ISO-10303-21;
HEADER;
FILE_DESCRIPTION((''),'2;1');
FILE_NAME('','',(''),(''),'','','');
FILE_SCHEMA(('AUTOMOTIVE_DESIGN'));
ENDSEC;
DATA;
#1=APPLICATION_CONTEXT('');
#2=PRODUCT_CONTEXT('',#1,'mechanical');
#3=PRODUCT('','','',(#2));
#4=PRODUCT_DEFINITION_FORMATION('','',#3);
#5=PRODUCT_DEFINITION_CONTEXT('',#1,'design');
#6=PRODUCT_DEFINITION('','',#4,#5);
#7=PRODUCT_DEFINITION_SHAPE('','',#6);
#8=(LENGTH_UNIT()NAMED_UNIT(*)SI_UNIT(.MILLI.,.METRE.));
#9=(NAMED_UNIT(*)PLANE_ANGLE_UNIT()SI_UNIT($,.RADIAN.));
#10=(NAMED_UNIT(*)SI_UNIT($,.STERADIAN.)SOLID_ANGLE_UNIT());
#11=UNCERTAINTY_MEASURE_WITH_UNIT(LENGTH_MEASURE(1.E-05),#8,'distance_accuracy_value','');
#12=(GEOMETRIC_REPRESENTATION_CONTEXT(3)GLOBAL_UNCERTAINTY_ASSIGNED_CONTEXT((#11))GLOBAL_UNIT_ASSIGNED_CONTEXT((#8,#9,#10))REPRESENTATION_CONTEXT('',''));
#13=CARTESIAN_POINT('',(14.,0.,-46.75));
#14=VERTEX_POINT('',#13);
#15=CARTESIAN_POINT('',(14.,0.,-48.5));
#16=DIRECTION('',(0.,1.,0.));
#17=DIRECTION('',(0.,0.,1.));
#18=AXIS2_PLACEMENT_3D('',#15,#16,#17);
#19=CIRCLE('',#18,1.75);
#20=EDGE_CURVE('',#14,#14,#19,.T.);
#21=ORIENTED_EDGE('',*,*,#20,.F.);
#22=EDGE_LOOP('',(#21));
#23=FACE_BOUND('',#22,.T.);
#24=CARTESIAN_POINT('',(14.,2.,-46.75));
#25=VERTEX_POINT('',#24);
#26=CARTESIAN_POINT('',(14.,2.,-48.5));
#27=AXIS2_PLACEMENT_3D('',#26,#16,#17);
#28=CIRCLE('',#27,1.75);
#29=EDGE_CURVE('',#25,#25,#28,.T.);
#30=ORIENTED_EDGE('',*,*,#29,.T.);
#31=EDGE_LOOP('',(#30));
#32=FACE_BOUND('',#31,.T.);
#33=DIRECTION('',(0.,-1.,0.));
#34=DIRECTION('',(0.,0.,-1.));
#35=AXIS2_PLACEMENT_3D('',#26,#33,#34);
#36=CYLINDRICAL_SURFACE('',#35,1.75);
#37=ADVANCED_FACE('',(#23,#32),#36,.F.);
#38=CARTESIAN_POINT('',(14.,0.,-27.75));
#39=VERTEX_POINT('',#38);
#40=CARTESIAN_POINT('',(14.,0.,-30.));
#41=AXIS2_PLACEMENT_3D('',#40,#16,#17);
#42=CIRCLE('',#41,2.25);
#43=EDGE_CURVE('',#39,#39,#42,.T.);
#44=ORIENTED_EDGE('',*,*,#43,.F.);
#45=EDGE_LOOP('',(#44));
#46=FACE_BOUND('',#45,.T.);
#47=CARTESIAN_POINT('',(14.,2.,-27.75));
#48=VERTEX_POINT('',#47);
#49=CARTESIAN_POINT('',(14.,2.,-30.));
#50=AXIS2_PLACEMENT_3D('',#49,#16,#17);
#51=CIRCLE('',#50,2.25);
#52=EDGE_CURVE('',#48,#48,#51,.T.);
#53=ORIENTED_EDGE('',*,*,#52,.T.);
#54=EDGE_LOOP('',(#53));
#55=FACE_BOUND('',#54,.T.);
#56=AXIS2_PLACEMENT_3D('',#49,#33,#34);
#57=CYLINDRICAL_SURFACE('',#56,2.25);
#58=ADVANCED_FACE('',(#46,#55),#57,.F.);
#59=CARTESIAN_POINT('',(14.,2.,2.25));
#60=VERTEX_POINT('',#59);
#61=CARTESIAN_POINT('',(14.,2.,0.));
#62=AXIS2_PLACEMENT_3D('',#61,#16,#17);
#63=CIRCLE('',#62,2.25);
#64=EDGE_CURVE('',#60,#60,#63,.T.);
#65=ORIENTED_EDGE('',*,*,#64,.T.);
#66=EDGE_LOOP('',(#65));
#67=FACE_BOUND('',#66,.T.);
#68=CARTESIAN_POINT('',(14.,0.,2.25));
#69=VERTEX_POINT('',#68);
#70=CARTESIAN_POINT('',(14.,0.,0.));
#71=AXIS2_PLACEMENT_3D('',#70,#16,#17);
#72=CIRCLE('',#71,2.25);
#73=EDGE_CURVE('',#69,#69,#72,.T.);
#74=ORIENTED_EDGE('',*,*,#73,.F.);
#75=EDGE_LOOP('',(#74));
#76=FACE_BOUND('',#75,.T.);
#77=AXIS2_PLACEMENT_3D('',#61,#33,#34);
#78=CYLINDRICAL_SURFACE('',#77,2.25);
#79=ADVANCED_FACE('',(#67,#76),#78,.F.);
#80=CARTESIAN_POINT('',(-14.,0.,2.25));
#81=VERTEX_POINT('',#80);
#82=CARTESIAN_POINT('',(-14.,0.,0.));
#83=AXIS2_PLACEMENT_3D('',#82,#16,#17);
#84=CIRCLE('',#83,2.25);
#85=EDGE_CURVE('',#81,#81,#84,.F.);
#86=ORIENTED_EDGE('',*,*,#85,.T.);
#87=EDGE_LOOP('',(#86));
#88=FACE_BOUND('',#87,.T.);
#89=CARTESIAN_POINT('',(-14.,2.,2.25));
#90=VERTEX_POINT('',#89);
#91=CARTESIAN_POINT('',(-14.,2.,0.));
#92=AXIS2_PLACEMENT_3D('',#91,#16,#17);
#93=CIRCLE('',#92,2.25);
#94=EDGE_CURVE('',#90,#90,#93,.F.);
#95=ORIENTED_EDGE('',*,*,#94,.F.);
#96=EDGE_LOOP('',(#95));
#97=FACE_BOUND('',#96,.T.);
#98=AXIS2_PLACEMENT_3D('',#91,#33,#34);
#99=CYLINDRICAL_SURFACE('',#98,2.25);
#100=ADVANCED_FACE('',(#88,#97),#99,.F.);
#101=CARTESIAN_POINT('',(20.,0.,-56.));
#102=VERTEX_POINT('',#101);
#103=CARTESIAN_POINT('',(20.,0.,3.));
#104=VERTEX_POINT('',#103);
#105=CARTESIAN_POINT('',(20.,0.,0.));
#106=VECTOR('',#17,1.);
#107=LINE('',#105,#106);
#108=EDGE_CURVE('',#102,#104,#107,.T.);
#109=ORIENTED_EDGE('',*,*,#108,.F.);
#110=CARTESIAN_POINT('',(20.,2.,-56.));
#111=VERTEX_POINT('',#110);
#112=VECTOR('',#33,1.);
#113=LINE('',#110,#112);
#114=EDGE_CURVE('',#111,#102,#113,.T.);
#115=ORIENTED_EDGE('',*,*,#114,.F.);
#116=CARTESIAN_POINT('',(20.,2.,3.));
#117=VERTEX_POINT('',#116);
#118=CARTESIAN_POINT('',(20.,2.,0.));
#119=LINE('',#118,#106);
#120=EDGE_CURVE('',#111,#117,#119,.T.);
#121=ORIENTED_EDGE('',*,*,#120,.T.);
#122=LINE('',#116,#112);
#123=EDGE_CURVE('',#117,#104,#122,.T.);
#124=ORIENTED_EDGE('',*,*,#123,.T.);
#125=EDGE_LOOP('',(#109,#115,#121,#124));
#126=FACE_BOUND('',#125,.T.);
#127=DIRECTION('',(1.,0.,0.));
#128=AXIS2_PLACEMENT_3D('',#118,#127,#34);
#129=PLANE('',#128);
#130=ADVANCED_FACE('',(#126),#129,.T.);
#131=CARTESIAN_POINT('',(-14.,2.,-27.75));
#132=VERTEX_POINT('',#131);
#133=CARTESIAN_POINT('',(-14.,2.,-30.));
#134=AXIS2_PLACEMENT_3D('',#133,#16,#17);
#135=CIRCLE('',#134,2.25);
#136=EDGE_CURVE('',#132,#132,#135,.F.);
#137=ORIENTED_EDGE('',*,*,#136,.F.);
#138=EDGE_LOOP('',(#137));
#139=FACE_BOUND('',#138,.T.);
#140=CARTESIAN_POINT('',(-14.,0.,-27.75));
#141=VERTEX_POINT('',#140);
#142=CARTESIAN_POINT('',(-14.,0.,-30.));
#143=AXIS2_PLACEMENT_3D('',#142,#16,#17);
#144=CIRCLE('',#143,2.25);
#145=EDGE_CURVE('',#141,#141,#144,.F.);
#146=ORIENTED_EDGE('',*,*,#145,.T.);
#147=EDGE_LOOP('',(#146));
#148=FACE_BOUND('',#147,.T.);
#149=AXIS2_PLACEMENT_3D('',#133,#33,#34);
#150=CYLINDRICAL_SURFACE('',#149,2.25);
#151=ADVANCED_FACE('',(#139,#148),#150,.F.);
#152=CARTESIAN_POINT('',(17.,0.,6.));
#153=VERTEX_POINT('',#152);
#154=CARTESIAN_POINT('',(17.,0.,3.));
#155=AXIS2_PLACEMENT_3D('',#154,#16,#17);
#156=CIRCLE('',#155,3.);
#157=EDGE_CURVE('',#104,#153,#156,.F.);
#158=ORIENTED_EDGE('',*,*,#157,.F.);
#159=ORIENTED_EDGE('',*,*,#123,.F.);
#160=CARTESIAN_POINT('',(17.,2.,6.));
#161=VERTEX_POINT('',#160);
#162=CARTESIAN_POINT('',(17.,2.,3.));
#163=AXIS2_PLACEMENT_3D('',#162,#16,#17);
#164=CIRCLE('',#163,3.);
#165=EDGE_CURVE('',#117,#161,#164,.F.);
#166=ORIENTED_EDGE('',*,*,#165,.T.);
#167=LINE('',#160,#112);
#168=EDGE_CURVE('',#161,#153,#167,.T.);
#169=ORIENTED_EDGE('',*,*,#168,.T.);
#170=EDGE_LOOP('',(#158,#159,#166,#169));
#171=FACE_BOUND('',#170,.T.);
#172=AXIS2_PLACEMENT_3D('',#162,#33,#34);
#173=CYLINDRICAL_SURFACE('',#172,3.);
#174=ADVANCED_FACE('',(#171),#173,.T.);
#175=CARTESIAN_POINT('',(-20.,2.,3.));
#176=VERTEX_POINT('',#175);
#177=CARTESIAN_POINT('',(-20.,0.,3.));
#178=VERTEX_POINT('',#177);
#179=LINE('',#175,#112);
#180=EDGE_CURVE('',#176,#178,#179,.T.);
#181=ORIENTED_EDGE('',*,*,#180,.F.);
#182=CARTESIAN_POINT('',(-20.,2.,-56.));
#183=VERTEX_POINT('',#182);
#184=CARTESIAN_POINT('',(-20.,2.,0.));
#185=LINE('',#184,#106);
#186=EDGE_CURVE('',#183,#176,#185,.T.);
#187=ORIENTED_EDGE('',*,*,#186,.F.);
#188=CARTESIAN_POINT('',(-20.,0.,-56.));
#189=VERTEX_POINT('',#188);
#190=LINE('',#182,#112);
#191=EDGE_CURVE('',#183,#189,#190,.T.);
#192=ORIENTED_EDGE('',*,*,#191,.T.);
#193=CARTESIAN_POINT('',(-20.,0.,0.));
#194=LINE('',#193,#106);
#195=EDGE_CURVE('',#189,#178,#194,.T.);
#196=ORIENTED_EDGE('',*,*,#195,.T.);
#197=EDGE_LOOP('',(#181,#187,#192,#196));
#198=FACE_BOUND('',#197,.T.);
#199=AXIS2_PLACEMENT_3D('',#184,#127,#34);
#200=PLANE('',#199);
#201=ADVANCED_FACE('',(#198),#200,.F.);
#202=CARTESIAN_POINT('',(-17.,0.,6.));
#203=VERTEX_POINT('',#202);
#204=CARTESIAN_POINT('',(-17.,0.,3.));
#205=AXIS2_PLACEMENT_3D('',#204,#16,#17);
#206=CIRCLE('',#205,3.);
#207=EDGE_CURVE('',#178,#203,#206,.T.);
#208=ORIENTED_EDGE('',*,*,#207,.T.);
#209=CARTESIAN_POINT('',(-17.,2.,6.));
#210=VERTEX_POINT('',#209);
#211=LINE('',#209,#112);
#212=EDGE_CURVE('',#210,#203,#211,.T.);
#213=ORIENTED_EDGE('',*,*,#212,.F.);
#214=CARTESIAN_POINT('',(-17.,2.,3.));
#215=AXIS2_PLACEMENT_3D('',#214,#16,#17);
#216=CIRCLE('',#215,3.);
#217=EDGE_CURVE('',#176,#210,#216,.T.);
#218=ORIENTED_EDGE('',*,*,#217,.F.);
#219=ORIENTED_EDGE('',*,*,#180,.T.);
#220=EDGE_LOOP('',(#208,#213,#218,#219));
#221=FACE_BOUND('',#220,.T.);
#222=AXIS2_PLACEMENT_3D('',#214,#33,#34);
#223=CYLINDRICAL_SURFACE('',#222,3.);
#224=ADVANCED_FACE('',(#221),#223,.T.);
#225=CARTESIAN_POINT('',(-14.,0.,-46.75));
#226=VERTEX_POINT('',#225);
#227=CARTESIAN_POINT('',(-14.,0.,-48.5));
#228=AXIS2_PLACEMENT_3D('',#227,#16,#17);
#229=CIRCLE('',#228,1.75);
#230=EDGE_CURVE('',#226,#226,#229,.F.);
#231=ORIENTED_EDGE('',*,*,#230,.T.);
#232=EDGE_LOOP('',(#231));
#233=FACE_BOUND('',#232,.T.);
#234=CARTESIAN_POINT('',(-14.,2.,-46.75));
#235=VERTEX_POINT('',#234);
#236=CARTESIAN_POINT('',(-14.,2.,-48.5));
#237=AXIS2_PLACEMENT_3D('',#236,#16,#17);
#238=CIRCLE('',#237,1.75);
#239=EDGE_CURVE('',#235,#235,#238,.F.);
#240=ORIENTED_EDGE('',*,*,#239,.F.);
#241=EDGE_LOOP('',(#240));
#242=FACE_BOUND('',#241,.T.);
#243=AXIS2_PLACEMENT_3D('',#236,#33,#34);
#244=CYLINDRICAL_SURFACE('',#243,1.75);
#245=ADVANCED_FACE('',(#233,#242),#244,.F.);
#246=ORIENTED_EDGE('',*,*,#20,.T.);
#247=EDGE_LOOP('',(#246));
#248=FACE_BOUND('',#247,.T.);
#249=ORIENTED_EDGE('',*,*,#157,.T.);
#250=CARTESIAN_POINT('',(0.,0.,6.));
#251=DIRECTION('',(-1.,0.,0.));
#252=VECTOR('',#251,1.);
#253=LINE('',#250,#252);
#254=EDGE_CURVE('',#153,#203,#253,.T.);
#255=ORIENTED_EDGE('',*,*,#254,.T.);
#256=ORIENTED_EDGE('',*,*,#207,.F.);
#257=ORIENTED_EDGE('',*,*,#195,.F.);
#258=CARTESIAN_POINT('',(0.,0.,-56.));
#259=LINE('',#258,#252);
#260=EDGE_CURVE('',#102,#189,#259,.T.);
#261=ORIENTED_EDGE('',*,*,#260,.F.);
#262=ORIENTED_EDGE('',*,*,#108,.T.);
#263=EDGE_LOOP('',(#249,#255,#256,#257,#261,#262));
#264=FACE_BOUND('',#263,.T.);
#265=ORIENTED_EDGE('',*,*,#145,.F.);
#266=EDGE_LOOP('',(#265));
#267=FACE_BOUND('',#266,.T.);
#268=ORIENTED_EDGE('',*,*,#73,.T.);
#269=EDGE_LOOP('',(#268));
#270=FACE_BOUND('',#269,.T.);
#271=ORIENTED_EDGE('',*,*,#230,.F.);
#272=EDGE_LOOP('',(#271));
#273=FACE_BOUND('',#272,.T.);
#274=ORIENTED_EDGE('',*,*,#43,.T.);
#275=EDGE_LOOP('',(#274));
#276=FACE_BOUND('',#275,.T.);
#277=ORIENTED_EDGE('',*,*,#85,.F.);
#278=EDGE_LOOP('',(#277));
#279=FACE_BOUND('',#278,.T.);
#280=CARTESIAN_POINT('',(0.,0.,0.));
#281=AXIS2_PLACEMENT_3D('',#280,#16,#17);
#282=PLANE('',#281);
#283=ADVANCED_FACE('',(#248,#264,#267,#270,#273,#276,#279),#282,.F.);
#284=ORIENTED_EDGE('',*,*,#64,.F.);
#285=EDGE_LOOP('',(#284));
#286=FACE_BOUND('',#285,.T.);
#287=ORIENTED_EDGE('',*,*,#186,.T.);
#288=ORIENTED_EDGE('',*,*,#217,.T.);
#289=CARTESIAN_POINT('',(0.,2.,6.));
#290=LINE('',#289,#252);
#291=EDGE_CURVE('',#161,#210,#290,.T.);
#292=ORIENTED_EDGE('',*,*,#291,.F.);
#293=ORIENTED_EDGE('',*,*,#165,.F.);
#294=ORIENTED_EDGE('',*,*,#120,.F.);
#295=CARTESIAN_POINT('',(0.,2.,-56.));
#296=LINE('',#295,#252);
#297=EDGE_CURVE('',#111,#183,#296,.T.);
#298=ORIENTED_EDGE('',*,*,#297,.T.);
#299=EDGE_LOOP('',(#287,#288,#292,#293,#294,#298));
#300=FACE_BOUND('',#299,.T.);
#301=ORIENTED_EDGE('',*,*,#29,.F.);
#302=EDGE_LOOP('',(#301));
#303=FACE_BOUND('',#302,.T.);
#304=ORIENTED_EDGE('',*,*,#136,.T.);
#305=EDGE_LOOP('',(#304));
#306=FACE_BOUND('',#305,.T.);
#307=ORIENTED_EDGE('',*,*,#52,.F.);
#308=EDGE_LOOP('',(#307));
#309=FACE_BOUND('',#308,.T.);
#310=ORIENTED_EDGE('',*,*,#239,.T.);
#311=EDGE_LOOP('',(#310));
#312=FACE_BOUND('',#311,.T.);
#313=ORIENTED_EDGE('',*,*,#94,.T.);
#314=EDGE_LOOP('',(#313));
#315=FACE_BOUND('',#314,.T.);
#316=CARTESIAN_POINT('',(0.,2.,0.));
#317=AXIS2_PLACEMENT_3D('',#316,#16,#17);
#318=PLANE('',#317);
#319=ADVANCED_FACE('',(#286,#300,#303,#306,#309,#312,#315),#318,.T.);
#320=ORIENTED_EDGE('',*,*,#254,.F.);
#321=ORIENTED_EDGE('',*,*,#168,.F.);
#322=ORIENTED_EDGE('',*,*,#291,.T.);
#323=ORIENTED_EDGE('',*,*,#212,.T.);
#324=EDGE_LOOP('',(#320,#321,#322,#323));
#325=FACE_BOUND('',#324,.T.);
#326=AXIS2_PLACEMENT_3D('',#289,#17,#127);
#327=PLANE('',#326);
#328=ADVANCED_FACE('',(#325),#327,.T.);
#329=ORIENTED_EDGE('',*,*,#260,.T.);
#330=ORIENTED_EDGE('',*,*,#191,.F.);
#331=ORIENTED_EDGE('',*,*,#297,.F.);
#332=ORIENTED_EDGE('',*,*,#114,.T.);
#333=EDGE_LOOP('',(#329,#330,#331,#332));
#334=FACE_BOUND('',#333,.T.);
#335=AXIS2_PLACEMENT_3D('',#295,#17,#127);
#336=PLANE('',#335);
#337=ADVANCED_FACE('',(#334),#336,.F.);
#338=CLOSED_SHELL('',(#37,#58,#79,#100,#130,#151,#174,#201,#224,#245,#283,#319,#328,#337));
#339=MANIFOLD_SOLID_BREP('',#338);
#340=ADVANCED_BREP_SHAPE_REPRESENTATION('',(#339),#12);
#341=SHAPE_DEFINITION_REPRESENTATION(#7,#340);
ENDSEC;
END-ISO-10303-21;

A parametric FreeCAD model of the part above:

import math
import FreeCAD as App
import Part
import Sketcher
from FreeCAD import Vector
Q = App.Units.Quantity

doc = App.newDocument("Part")
params = doc.addObject("Spreadsheet::Sheet", "Params")
for row, (alias, value) in enumerate([
    ("sketch1_radius", "3 mm"),
    ("sketch1_width", "34 mm"),
    ("sketch1_height", "59 mm"),
    ("sketch1_radius2", "2.25 mm"),
    ("sketch1_radius3", "1.75 mm"),
    ("pad1_length", "2 mm"),
], start=1):
    params.set(f"A{row}", alias)
    params.set(f"B{row}", "=" + value)
    params.setAlias(f"B{row}", alias)

body = doc.addObject("PartDesign::Body", "Body")

# Sketch on XZ plane
sketch1 = body.newObject("Sketcher::SketchObject", "Sketch")
sketch1.AttachmentSupport = (doc.getObject("XZ_Plane"), [""])
sketch1.MapMode = "FlatFace"
sketch1.addGeometry([
    Part.LineSegment(Vector(-20, -56, 0), Vector(-20, 3, 0)),  # 0
    Part.ArcOfCircle(Part.Circle(Vector(-17, 3, 0), Vector(0, 0, 1), 3), math.radians(90), math.radians(180)),  # 1
    Part.LineSegment(Vector(-17, 6, 0), Vector(17, 6, 0)),  # 2
    Part.ArcOfCircle(Part.Circle(Vector(17, 3, 0), Vector(0, 0, 1), 3), math.radians(0), math.radians(90)),  # 3
    Part.LineSegment(Vector(20, 3, 0), Vector(20, -56, 0)),  # 4
    Part.LineSegment(Vector(20, -56, 0), Vector(-20, -56, 0)),  # 5
    Part.ArcOfCircle(Part.Circle(Vector(14, 0, 0), Vector(0, 0, 1), 2.25), math.radians(180), math.radians(270)),  # 6
    Part.ArcOfCircle(Part.Circle(Vector(14, 0, 0), Vector(0, 0, 1), 2.25), math.radians(-90), math.radians(0)),  # 7
    Part.ArcOfCircle(Part.Circle(Vector(14, 0, 0), Vector(0, 0, 1), 2.25), math.radians(0), math.radians(180)),  # 8
    Part.ArcOfCircle(Part.Circle(Vector(14, -30, 0), Vector(0, 0, 1), 2.25), math.radians(90), math.radians(180)),  # 9
    Part.ArcOfCircle(Part.Circle(Vector(14, -30, 0), Vector(0, 0, 1), 2.25), math.radians(180), math.radians(270)),  # 10
    Part.ArcOfCircle(Part.Circle(Vector(14, -30, 0), Vector(0, 0, 1), 2.25), math.radians(-90), math.radians(0)),  # 11
    Part.ArcOfCircle(Part.Circle(Vector(14, -30, 0), Vector(0, 0, 1), 2.25), math.radians(0), math.radians(90)),  # 12
    Part.ArcOfCircle(Part.Circle(Vector(-14, -30, 0), Vector(0, 0, 1), 2.25), math.radians(0), math.radians(90)),  # 13
    Part.ArcOfCircle(Part.Circle(Vector(-14, -30, 0), Vector(0, 0, 1), 2.25), math.radians(90), math.radians(270)),  # 14
    Part.ArcOfCircle(Part.Circle(Vector(-14, -30, 0), Vector(0, 0, 1), 2.25), math.radians(-90), math.radians(0)),  # 15
    Part.ArcOfCircle(Part.Circle(Vector(-14, -48.5, 0), Vector(0, 0, 1), 1.75), math.radians(90), math.radians(270)),  # 16
    Part.ArcOfCircle(Part.Circle(Vector(-14, -48.5, 0), Vector(0, 0, 1), 1.75), math.radians(-90), math.radians(0)),  # 17
    Part.ArcOfCircle(Part.Circle(Vector(-14, -48.5, 0), Vector(0, 0, 1), 1.75), math.radians(0), math.radians(90)),  # 18
    Part.ArcOfCircle(Part.Circle(Vector(14, -48.5, 0), Vector(0, 0, 1), 1.75), math.radians(-90), math.radians(0)),  # 19
    Part.ArcOfCircle(Part.Circle(Vector(14, -48.5, 0), Vector(0, 0, 1), 1.75), math.radians(0), math.radians(90)),  # 20
    Part.ArcOfCircle(Part.Circle(Vector(14, -48.5, 0), Vector(0, 0, 1), 1.75), math.radians(90), math.radians(270)),  # 21
    Part.ArcOfCircle(Part.Circle(Vector(-14, 0, 0), Vector(0, 0, 1), 2.25), math.radians(-90), math.radians(0)),  # 22
    Part.ArcOfCircle(Part.Circle(Vector(-14, 0, 0), Vector(0, 0, 1), 2.25), math.radians(0), math.radians(270)),  # 23
], False)
sketch1.addConstraint([
    Sketcher.Constraint("Tangent", 0, 2, 1, 2),
    Sketcher.Constraint("Tangent", 1, 1, 2, 1),
    Sketcher.Constraint("Tangent", 2, 2, 3, 2),
    Sketcher.Constraint("Tangent", 3, 1, 4, 1),
    Sketcher.Constraint("Coincident", 4, 2, 5, 1),
    Sketcher.Constraint("Coincident", 5, 2, 0, 1),
    Sketcher.Constraint("Tangent", 6, 2, 7, 1),
    Sketcher.Constraint("Tangent", 7, 2, 8, 1),
    Sketcher.Constraint("Tangent", 8, 2, 6, 1),
    Sketcher.Constraint("Tangent", 9, 2, 10, 1),
    Sketcher.Constraint("Tangent", 10, 2, 11, 1),
    Sketcher.Constraint("Tangent", 11, 2, 12, 1),
    Sketcher.Constraint("Tangent", 12, 2, 9, 1),
    Sketcher.Constraint("Tangent", 13, 2, 14, 1),
    Sketcher.Constraint("Tangent", 14, 2, 15, 1),
    Sketcher.Constraint("Tangent", 15, 2, 13, 1),
    Sketcher.Constraint("Tangent", 16, 2, 17, 1),
    Sketcher.Constraint("Tangent", 17, 2, 18, 1),
    Sketcher.Constraint("Tangent", 18, 2, 16, 1),
    Sketcher.Constraint("Tangent", 19, 2, 20, 1),
    Sketcher.Constraint("Tangent", 20, 2, 21, 1),
    Sketcher.Constraint("Tangent", 21, 2, 19, 1),
    Sketcher.Constraint("Tangent", 22, 1, 23, 2),
    Sketcher.Constraint("Coincident", 23, 1, 22, 2),
    Sketcher.Constraint("Vertical", 0),
    Sketcher.Constraint("Horizontal", 2),
    Sketcher.Constraint("Vertical", 4),
    Sketcher.Constraint("Horizontal", 5),
    Sketcher.Constraint("Equal", 1, 3),
    Sketcher.Constraint("Equal", 8, 9),
    Sketcher.Constraint("Equal", 9, 10),
    Sketcher.Constraint("Equal", 12, 13),
    Sketcher.Constraint("Equal", 18, 19),
    Sketcher.Constraint("Equal", 15, 22),
    Sketcher.Constraint("Symmetric", 6, 3, 22, 3, -1, 1),
    Sketcher.Constraint("Symmetric", 9, 3, 13, 3, -2),
    Sketcher.Constraint("Symmetric", 16, 3, 19, 3, -2),
    Sketcher.Constraint("Symmetric", 6, 2, 22, 1, -2),
    Sketcher.Constraint("PointOnObject", 7, 2, -1),
    Sketcher.Constraint("PointOnObject", 8, 2, -1),
    Sketcher.Constraint("PointOnObject", 23, 1, -1),
    Sketcher.Constraint("Horizontal", 15, 3, 9, 2),
    Sketcher.Constraint("Horizontal", 9, 2, 11, 2),
    Sketcher.Constraint("Horizontal", 11, 2, 15, 2),
    Sketcher.Constraint("Horizontal", 21, 3, 17, 2),
    Sketcher.Constraint("Horizontal", 17, 2, 19, 2),
    Sketcher.Constraint("Vertical", 8, 3, 9, 3),
    Sketcher.Constraint("Vertical", 15, 3, 16, 3),
    Sketcher.Constraint("Vertical", 21, 3, 6, 2),
    Sketcher.Constraint("Vertical", 6, 2, 10, 2),
    Sketcher.Constraint("Vertical", 10, 2, 12, 2),
    Sketcher.Constraint("Vertical", 23, 3, 13, 2),
    Sketcher.Constraint("Vertical", 13, 2, 14, 2),
    Sketcher.Constraint("Vertical", 14, 2, 16, 2),
    Sketcher.Constraint("Vertical", 16, 2, 18, 2),
    Sketcher.Constraint("Vertical", 12, 2, 20, 2),
    Sketcher.Constraint("Vertical", 20, 2, 21, 2),
    Sketcher.Constraint("Radius", 1, Q("3 mm")),
    Sketcher.Constraint("DistanceX", 2, 1, 2, 2, Q("34 mm")),
    Sketcher.Constraint("DistanceY", 0, 1, 0, 2, Q("59 mm")),
    Sketcher.Constraint("Radius", 6, Q("2.25 mm")),
    Sketcher.Constraint("Radius", 16, Q("1.75 mm")),
    Sketcher.Constraint("DistanceX", 1, 3, -1, 1, Q("17 mm")),
    Sketcher.Constraint("DistanceY", -1, 1, 1, 3, Q("3 mm")),
    Sketcher.Constraint("DistanceX", -1, 1, 6, 3, Q("14 mm")),
    Sketcher.Constraint("DistanceY", 9, 3, -1, 1, Q("30 mm")),
    Sketcher.Constraint("DistanceY", 16, 2, 14, 2, Q("18 mm")),
])
sketch1.setExpression("Constraints[57]", "Params.sketch1_radius")
sketch1.setExpression("Constraints[58]", "Params.sketch1_width")
sketch1.setExpression("Constraints[59]", "Params.sketch1_height")
sketch1.setExpression("Constraints[60]", "Params.sketch1_radius2")
sketch1.setExpression("Constraints[61]", "Params.sketch1_radius3")
pad1 = body.newObject("PartDesign::Pad", "Pad")
pad1.Profile = sketch1
pad1.setExpression("Length", "Params.pad1_length")
pad1.Reversed = True

doc.recompute()
